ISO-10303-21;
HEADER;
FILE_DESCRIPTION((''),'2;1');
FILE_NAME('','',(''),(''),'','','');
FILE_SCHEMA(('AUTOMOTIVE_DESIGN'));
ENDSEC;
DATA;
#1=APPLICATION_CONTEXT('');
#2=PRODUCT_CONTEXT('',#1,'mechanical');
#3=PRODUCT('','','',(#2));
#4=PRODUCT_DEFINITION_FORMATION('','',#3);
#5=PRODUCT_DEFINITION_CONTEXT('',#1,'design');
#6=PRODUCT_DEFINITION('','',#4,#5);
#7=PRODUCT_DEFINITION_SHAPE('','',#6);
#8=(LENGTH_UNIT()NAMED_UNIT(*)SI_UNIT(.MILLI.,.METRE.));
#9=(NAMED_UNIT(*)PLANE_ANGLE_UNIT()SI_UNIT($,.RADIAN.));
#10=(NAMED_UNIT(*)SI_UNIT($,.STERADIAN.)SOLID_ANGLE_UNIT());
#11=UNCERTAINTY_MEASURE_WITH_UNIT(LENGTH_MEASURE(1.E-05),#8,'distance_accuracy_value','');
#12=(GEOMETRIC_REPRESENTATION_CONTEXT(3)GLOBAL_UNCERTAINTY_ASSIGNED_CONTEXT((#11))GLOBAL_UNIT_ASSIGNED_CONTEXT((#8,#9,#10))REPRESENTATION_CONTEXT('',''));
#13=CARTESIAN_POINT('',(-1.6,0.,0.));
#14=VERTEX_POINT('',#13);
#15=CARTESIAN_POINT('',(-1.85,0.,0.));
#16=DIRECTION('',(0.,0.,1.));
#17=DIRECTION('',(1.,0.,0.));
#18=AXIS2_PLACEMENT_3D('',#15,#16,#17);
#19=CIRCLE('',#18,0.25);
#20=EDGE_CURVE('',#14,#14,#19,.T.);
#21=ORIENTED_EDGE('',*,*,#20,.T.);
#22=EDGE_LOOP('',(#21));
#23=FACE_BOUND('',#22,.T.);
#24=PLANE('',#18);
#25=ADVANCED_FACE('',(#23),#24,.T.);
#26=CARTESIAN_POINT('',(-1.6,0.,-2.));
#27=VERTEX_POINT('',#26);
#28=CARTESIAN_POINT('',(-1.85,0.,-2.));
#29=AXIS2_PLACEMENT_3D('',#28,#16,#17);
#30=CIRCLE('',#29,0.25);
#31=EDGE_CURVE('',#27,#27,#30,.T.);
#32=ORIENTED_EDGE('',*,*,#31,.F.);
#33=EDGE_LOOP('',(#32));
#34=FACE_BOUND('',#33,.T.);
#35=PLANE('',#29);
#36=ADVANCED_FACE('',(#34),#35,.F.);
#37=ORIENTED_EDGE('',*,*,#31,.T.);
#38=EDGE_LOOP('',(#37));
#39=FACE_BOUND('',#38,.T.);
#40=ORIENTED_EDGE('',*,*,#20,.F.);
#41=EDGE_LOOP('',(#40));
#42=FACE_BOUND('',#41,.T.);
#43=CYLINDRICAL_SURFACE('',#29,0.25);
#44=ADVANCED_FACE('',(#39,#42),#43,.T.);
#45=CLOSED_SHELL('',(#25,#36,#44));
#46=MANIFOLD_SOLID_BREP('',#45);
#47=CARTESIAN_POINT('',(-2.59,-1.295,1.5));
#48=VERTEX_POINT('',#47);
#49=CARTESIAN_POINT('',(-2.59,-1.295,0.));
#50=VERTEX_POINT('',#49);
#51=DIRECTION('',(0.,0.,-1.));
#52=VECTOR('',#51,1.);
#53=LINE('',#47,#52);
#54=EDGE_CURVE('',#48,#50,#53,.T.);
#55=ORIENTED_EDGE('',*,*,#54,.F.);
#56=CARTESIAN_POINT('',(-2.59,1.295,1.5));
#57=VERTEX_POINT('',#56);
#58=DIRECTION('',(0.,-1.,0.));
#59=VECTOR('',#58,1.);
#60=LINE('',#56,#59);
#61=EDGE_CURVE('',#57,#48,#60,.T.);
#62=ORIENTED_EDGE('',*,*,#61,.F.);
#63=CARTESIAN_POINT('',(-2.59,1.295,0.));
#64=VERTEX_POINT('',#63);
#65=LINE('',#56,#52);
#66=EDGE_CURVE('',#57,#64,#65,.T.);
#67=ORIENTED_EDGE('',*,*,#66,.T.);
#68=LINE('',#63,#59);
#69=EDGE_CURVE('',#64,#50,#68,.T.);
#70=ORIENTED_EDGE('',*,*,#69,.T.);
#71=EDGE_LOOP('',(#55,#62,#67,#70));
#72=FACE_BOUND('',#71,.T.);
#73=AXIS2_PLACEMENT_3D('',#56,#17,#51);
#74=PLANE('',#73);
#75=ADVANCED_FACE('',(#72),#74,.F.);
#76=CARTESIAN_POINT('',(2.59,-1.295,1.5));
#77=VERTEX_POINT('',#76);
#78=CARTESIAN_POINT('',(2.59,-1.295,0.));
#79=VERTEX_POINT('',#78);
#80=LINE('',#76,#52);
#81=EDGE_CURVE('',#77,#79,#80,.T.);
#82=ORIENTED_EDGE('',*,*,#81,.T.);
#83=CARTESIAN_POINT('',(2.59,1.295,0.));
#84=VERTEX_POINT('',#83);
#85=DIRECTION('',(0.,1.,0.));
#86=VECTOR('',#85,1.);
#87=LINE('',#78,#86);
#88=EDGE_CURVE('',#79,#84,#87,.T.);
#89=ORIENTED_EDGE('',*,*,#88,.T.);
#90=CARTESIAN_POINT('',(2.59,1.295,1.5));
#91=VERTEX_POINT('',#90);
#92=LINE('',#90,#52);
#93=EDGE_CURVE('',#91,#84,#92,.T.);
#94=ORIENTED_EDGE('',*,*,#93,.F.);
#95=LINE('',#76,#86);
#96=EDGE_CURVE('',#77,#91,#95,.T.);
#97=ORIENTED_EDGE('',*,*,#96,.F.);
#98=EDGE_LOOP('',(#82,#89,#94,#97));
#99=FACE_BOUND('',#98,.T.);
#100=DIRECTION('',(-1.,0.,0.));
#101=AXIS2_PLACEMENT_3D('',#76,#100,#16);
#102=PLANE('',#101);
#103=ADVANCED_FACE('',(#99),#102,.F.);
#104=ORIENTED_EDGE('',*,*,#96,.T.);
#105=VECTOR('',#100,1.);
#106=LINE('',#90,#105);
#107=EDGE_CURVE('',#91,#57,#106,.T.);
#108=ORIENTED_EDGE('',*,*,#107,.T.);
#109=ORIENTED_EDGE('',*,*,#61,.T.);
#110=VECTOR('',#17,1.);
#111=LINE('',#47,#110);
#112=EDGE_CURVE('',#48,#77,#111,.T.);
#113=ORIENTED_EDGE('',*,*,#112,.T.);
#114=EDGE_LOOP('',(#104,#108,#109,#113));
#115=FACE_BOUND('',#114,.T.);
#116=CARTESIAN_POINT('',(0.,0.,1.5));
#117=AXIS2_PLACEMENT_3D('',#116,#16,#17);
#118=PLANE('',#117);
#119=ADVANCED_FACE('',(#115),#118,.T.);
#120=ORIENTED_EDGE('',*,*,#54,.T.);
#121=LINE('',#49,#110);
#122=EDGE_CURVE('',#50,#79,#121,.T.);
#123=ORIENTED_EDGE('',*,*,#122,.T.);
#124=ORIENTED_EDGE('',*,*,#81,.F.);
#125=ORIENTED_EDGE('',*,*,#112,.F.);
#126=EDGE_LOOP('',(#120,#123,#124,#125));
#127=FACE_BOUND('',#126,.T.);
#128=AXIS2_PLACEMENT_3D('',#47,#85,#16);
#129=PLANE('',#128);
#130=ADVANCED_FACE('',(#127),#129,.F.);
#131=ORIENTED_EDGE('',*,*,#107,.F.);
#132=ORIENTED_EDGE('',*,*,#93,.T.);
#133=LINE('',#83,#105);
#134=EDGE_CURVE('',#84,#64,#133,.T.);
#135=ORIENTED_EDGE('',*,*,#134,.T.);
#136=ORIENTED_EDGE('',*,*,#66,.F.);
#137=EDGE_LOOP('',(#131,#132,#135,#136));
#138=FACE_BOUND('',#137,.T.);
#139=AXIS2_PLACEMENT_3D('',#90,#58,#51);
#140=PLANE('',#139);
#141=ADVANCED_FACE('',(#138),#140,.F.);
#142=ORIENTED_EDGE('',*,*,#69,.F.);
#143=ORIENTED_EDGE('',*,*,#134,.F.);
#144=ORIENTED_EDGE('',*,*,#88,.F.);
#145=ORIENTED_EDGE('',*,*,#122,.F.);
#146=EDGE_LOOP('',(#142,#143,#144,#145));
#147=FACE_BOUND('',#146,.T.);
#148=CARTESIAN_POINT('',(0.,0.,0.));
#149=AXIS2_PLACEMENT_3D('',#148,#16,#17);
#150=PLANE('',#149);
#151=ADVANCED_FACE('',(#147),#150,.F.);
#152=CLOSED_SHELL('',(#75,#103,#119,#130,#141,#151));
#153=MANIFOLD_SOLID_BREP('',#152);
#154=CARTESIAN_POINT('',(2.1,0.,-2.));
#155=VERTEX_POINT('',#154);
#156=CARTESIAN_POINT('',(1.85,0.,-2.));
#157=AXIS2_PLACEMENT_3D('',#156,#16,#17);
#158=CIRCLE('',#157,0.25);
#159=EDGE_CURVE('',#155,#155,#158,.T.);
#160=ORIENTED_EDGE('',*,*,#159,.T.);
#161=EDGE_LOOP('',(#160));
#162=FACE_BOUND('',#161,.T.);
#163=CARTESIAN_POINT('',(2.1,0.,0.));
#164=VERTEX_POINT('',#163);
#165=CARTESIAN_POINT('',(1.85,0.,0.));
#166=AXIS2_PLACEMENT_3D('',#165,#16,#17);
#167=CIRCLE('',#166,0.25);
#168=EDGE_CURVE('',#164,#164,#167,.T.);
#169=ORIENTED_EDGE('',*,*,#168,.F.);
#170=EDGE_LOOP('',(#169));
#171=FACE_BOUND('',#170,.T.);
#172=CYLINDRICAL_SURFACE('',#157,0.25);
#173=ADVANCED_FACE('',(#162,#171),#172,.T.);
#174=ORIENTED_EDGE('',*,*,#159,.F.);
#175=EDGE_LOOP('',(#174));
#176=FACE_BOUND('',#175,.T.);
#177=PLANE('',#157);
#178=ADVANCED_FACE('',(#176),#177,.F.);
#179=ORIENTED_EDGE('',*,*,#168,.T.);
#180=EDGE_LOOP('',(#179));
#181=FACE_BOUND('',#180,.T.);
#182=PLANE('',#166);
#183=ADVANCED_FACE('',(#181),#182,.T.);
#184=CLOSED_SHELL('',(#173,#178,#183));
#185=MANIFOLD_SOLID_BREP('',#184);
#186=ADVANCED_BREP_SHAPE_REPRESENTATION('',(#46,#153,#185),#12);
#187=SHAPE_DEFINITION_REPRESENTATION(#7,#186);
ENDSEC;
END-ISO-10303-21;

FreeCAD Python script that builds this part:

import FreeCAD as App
import Part
import Sketcher

doc = App.newDocument("Part")
body = doc.addObject("PartDesign::Body", "Body")

# Sketch on XY plane
sketch1 = body.newObject("Sketcher::SketchObject", "Sketch")
sketch1.AttachmentSupport = (doc.getObject("XY_Plane"), [""])
sketch1.MapMode = "FlatFace"
sketch1.addGeometry([
    Part.LineSegment(App.Vector(-2.6, 1.3, 0), App.Vector(-2.6, -1.3, 0)),
    Part.LineSegment(App.Vector(-2.6, -1.3, 0), App.Vector(2.6, -1.3, 0)),
    Part.LineSegment(App.Vector(2.6, -1.3, 0), App.Vector(2.6, 1.3, 0)),
    Part.LineSegment(App.Vector(2.6, 1.3, 0), App.Vector(-2.6, 1.3, 0)),
], False)
sketch1.addConstraint([
    Sketcher.Constraint("Coincident", 0, 2, 1, 1),
    Sketcher.Constraint("Coincident", 1, 2, 2, 1),
    Sketcher.Constraint("Coincident", 2, 2, 3, 1),
    Sketcher.Constraint("Coincident", 3, 2, 0, 1),
    Sketcher.Constraint("Vertical", 0),
    Sketcher.Constraint("Horizontal", 1),
    Sketcher.Constraint("Vertical", 2),
    Sketcher.Constraint("Horizontal", 3),
    Sketcher.Constraint("Symmetric", 0, 2, 2, 2, -1, 1),
    Sketcher.Constraint("DistanceX", 1, 1, 1, 2, 5.18),
    Sketcher.Constraint("DistanceY", 0, 2, 0, 1, 2.59),
])
pad1 = body.newObject("PartDesign::Pad", "Pad")
pad1.Profile = sketch1
pad1.Length = 1.5
body2 = doc.addObject("PartDesign::Body", "Body001")

# Sketch on XY plane
sketch2 = body2.newObject("Sketcher::SketchObject", "Sketch001")
sketch2.AttachmentSupport = (doc.getObject("XY_Plane001"), [""])
sketch2.MapMode = "FlatFace"
sketch2.addGeometry(Part.Circle(App.Vector(-1.85, 0, 0), App.Vector(0, 0, 1), 0.25), False)
sketch2.addConstraint([
    Sketcher.Constraint("PointOnObject", 0, 3, -1),
    Sketcher.Constraint("Diameter", 0, 0.5),
    Sketcher.Constraint("DistanceX", 0, 3, -1, 1, 1.85),
])
pad2 = body2.newObject("PartDesign::Pad", "Pad001")
pad2.Profile = sketch2
pad2.Length = 2
pad2.Reversed = True
body3 = doc.addObject("PartDesign::Body", "Body002")

# Sketch on XY plane
sketch3 = body3.newObject("Sketcher::SketchObject", "Sketch002")
sketch3.AttachmentSupport = (doc.getObject("XY_Plane002"), [""])
sketch3.MapMode = "FlatFace"
sketch3.addGeometry(Part.Circle(App.Vector(1.85, 0, 0), App.Vector(0, 0, 1), 0.25), False)
sketch3.addConstraint([
    Sketcher.Constraint("PointOnObject", 0, 3, -1),
    Sketcher.Constraint("Diameter", 0, 0.5),
    Sketcher.Constraint("DistanceX", -1, 1, 0, 3, 1.85),
])
pad3 = body3.newObject("PartDesign::Pad", "Pad002")
pad3.Profile = sketch3
pad3.Length = 2
pad3.Reversed = True

doc.recompute()
